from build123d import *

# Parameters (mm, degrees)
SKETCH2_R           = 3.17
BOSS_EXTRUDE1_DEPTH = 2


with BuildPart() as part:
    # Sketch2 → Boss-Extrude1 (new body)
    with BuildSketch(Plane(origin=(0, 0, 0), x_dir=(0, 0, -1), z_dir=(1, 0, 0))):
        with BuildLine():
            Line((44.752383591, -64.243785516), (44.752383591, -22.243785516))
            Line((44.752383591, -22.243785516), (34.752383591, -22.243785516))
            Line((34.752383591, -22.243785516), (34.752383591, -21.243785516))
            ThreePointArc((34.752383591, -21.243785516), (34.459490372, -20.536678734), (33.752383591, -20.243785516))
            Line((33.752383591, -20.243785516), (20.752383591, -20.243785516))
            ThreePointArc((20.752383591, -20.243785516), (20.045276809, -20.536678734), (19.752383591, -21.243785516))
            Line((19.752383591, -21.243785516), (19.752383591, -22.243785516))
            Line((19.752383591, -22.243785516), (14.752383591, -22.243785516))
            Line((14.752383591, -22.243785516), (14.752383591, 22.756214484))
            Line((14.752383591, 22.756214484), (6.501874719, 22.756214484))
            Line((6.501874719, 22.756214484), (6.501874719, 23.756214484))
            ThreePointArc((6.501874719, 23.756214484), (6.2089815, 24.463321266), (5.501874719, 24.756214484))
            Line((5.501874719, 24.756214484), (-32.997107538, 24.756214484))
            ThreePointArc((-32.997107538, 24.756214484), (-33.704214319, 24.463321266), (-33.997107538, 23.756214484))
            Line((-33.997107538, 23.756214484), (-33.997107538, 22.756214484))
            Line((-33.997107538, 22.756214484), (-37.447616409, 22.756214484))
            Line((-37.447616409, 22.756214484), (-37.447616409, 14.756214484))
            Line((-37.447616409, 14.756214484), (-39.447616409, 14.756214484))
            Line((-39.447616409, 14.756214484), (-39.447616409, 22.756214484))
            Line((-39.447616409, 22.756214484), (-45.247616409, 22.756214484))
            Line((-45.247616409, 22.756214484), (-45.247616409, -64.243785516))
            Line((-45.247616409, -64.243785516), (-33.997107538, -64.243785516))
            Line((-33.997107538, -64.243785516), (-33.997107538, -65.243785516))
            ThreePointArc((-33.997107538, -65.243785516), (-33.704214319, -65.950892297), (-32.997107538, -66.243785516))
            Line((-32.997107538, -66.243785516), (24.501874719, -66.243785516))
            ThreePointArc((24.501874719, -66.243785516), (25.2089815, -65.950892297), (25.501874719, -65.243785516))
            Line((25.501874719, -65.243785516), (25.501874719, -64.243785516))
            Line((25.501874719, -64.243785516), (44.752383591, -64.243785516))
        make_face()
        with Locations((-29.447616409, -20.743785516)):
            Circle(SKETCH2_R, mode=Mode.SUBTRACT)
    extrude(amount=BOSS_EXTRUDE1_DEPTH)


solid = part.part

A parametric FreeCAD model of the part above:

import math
import FreeCAD as App
import Part
import Sketcher

doc = App.newDocument("Part")
body = doc.addObject("PartDesign::Body", "Body")

sketch1 = body.newObject("Sketcher::SketchObject", "Sketch")
sketch1.AttachmentSupport = (doc.getObject("YZ_Plane"), [""])
sketch1.MapMode = "FlatFace"
sketch1.addGeometry([
    Part.LineSegment(App.Vector(-64.2, -44.8, 0), App.Vector(-22.2, -44.8, 0)),
    Part.LineSegment(App.Vector(-22.2, -44.8, 0), App.Vector(-22.2, -34.8, 0)),
    Part.LineSegment(App.Vector(-22.2, -34.8, 0), App.Vector(-21.2, -34.8, 0)),
    Part.ArcOfCircle(Part.Circle(App.Vector(-21.2, -33.8, 0), App.Vector(0, 0, 1), 1), math.radians(-90), math.radians(0)),
    Part.LineSegment(App.Vector(-20.2, -33.8, 0), App.Vector(-20.2, -20.8, 0)),
    Part.ArcOfCircle(Part.Circle(App.Vector(-21.2, -20.8, 0), App.Vector(0, 0, 1), 1), math.radians(0), math.radians(90)),
    Part.LineSegment(App.Vector(-21.2, -19.8, 0), App.Vector(-22.2, -19.8, 0)),
    Part.LineSegment(App.Vector(-22.2, -19.8, 0), App.Vector(-22.2, -14.8, 0)),
    Part.LineSegment(App.Vector(-22.2, -14.8, 0), App.Vector(22.8, -14.8, 0)),
    Part.LineSegment(App.Vector(22.8, -14.8, 0), App.Vector(22.8, -6.5, 0)),
    Part.LineSegment(App.Vector(22.8, -6.5, 0), App.Vector(23.8, -6.5, 0)),
    Part.ArcOfCircle(Part.Circle(App.Vector(23.8, -5.5, 0), App.Vector(0, 0, 1), 1), math.radians(-90), math.radians(0)),
    Part.LineSegment(App.Vector(24.8, -5.5, 0), App.Vector(24.8, 33, 0)),
    Part.ArcOfCircle(Part.Circle(App.Vector(23.8, 33, 0), App.Vector(0, 0, 1), 1), math.radians(0), math.radians(90)),
    Part.LineSegment(App.Vector(23.8, 34, 0), App.Vector(22.8, 34, 0)),
    Part.LineSegment(App.Vector(22.8, 34, 0), App.Vector(22.8, 37.4, 0)),
    Part.LineSegment(App.Vector(22.8, 37.4, 0), App.Vector(14.8, 37.4, 0)),
    Part.LineSegment(App.Vector(14.8, 37.4, 0), App.Vector(14.8, 39.4, 0)),
    Part.LineSegment(App.Vector(14.8, 39.4, 0), App.Vector(22.8, 39.4, 0)),
    Part.LineSegment(App.Vector(22.8, 39.4, 0), App.Vector(22.8, 45.2, 0)),
    Part.LineSegment(App.Vector(22.8, 45.2, 0), App.Vector(-64.2, 45.2, 0)),
    Part.LineSegment(App.Vector(-64.2, 45.2, 0), App.Vector(-64.2, 34, 0)),
    Part.LineSegment(App.Vector(-64.2, 34, 0), App.Vector(-65.2, 34, 0)),
    Part.ArcOfCircle(Part.Circle(App.Vector(-65.2, 33, 0), App.Vector(0, 0, 1), 1), math.radians(90), math.radians(180)),
    Part.LineSegment(App.Vector(-66.2, 33, 0), App.Vector(-66.2, -24.5, 0)),
    Part.ArcOfCircle(Part.Circle(App.Vector(-65.2, -24.5, 0), App.Vector(0, 0, 1), 1), math.radians(-180), math.radians(-90)),
    Part.LineSegment(App.Vector(-65.2, -25.5, 0), App.Vector(-64.2, -25.5, 0)),
    Part.LineSegment(App.Vector(-64.2, -25.5, 0), App.Vector(-64.2, -44.8, 0)),
    Part.Circle(App.Vector(-20.7, 29.4, 0), App.Vector(0, 0, 1), 3.2),
], False)
sketch1.addConstraint([
    Sketcher.Constraint("Coincident", 0, 2, 1, 1),
    Sketcher.Constraint("Coincident", 1, 2, 2, 1),
    Sketcher.Constraint("Tangent", 2, 2, 3, 1),
    Sketcher.Constraint("Tangent", 3, 2, 4, 1),
    Sketcher.Constraint("Tangent", 4, 2, 5, 1),
    Sketcher.Constraint("Tangent", 5, 2, 6, 1),
    Sketcher.Constraint("Coincident", 6, 2, 7, 1),
    Sketcher.Constraint("Coincident", 7, 2, 8, 1),
    Sketcher.Constraint("Coincident", 8, 2, 9, 1),
    Sketcher.Constraint("Coincident", 9, 2, 10, 1),
    Sketcher.Constraint("Tangent", 10, 2, 11, 1),
    Sketcher.Constraint("Tangent", 11, 2, 12, 1),
    Sketcher.Constraint("Tangent", 12, 2, 13, 1),
    Sketcher.Constraint("Tangent", 13, 2, 14, 1),
    Sketcher.Constraint("Coincident", 14, 2, 15, 1),
    Sketcher.Constraint("Coincident", 15, 2, 16, 1),
    Sketcher.Constraint("Coincident", 16, 2, 17, 1),
    Sketcher.Constraint("Coincident", 17, 2, 18, 1),
    Sketcher.Constraint("Coincident", 18, 2, 19, 1),
    Sketcher.Constraint("Coincident", 19, 2, 20, 1),
    Sketcher.Constraint("Coincident", 20, 2, 21, 1),
    Sketcher.Constraint("Coincident", 21, 2, 22, 1),
    Sketcher.Constraint("Tangent", 22, 2, 23, 1),
    Sketcher.Constraint("Tangent", 23, 2, 24, 1),
    Sketcher.Constraint("Tangent", 24, 2, 25, 1),
    Sketcher.Constraint("Tangent", 25, 2, 26, 1),
    Sketcher.Constraint("Coincident", 26, 2, 27, 1),
    Sketcher.Constraint("Coincident", 27, 2, 0, 1),
    Sketcher.Constraint("Horizontal", 0),
    Sketcher.Constraint("Vertical", 1),
    Sketcher.Constraint("Horizontal", 2),
    Sketcher.Constraint("Vertical", 4),
    Sketcher.Constraint("Horizontal", 6),
    Sketcher.Constraint("Vertical", 7),
    Sketcher.Constraint("Horizontal", 8),
    Sketcher.Constraint("Vertical", 9),
    Sketcher.Constraint("Horizontal", 10),
    Sketcher.Constraint("Vertical", 12),
    Sketcher.Constraint("Horizontal", 14),
    Sketcher.Constraint("Vertical", 15),
    Sketcher.Constraint("Horizontal", 16),
    Sketcher.Constraint("Vertical", 17),
    Sketcher.Constraint("Horizontal", 18),
    Sketcher.Constraint("Vertical", 19),
    Sketcher.Constraint("Horizontal", 20),
    Sketcher.Constraint("Vertical", 21),
    Sketcher.Constraint("Horizontal", 22),
    Sketcher.Constraint("Vertical", 24),
    Sketcher.Constraint("Horizontal", 26),
    Sketcher.Constraint("Vertical", 27),
    Sketcher.Constraint("Equal", 3, 5),
    Sketcher.Constraint("Equal", 5, 11),
    Sketcher.Constraint("Equal", 11, 13),
    Sketcher.Constraint("Equal", 13, 23),
    Sketcher.Constraint("Equal", 23, 25),
    Sketcher.Constraint("Horizontal", 13, 3, 23, 3),
    Sketcher.Constraint("Vertical", 1, 2, 6, 2),
    Sketcher.Constraint("Vertical", 9, 2, 14, 2),
    Sketcher.Constraint("Vertical", 15, 2, 18, 2),
    Sketcher.Constraint("Vertical", 21, 2, 26, 2),
    Sketcher.Constraint("Equal", 6, 10),
    Sketcher.Constraint("Equal", 14, 22),
    Sketcher.Constraint("Radius", 3, 1.0),
    Sketcher.Constraint("Diameter", 28, 6.34),
    Sketcher.Constraint("DistanceX", 0, 1, 0, 2, 42.0),
    Sketcher.Constraint("DistanceX", 2, 1, 2, 2, 1.0),
    Sketcher.Constraint("DistanceX", 8, 1, 8, 2, 45.0),
    Sketcher.Constraint("DistanceX", 16, 2, 16, 1, 8.0),
    Sketcher.Constraint("DistanceY", 1, 1, 1, 2, 10.0),
    Sketcher.Constraint("DistanceY", 4, 1, 4, 2, 13.0),
    Sketcher.Constraint("DistanceY", 7, 1, 7, 2, 5.0),
    Sketcher.Constraint("DistanceY", 17, 1, 17, 2, 2.0),
    Sketcher.Constraint("DistanceY", 19, 1, 19, 2, 5.8),
    Sketcher.Constraint("DistanceY", 25, 3, 11, 3, 19.0),
    Sketcher.Constraint("DistanceY", 7, 2, 20, 2, 60.0),
    Sketcher.Constraint("DistanceX", 23, 3, 28, 3, 44.5),
    Sketcher.Constraint("DistanceY", 5, 3, 28, 3, 50.2),
    Sketcher.Constraint("DistanceY", 9, 1, 9, 2, 8.250509),
    Sketcher.Constraint("DistanceY", 15, 1, 15, 2, 3.450509),
    Sketcher.Constraint("DistanceX", 3, 3, -1, 1, 21.243786),
    Sketcher.Constraint("DistanceY", 3, 3, -1, 1, 33.752384),
])
pad1 = body.newObject("PartDesign::Pad", "Pad")
pad1.Profile = sketch1
pad1.Length = 2

doc.recompute()
